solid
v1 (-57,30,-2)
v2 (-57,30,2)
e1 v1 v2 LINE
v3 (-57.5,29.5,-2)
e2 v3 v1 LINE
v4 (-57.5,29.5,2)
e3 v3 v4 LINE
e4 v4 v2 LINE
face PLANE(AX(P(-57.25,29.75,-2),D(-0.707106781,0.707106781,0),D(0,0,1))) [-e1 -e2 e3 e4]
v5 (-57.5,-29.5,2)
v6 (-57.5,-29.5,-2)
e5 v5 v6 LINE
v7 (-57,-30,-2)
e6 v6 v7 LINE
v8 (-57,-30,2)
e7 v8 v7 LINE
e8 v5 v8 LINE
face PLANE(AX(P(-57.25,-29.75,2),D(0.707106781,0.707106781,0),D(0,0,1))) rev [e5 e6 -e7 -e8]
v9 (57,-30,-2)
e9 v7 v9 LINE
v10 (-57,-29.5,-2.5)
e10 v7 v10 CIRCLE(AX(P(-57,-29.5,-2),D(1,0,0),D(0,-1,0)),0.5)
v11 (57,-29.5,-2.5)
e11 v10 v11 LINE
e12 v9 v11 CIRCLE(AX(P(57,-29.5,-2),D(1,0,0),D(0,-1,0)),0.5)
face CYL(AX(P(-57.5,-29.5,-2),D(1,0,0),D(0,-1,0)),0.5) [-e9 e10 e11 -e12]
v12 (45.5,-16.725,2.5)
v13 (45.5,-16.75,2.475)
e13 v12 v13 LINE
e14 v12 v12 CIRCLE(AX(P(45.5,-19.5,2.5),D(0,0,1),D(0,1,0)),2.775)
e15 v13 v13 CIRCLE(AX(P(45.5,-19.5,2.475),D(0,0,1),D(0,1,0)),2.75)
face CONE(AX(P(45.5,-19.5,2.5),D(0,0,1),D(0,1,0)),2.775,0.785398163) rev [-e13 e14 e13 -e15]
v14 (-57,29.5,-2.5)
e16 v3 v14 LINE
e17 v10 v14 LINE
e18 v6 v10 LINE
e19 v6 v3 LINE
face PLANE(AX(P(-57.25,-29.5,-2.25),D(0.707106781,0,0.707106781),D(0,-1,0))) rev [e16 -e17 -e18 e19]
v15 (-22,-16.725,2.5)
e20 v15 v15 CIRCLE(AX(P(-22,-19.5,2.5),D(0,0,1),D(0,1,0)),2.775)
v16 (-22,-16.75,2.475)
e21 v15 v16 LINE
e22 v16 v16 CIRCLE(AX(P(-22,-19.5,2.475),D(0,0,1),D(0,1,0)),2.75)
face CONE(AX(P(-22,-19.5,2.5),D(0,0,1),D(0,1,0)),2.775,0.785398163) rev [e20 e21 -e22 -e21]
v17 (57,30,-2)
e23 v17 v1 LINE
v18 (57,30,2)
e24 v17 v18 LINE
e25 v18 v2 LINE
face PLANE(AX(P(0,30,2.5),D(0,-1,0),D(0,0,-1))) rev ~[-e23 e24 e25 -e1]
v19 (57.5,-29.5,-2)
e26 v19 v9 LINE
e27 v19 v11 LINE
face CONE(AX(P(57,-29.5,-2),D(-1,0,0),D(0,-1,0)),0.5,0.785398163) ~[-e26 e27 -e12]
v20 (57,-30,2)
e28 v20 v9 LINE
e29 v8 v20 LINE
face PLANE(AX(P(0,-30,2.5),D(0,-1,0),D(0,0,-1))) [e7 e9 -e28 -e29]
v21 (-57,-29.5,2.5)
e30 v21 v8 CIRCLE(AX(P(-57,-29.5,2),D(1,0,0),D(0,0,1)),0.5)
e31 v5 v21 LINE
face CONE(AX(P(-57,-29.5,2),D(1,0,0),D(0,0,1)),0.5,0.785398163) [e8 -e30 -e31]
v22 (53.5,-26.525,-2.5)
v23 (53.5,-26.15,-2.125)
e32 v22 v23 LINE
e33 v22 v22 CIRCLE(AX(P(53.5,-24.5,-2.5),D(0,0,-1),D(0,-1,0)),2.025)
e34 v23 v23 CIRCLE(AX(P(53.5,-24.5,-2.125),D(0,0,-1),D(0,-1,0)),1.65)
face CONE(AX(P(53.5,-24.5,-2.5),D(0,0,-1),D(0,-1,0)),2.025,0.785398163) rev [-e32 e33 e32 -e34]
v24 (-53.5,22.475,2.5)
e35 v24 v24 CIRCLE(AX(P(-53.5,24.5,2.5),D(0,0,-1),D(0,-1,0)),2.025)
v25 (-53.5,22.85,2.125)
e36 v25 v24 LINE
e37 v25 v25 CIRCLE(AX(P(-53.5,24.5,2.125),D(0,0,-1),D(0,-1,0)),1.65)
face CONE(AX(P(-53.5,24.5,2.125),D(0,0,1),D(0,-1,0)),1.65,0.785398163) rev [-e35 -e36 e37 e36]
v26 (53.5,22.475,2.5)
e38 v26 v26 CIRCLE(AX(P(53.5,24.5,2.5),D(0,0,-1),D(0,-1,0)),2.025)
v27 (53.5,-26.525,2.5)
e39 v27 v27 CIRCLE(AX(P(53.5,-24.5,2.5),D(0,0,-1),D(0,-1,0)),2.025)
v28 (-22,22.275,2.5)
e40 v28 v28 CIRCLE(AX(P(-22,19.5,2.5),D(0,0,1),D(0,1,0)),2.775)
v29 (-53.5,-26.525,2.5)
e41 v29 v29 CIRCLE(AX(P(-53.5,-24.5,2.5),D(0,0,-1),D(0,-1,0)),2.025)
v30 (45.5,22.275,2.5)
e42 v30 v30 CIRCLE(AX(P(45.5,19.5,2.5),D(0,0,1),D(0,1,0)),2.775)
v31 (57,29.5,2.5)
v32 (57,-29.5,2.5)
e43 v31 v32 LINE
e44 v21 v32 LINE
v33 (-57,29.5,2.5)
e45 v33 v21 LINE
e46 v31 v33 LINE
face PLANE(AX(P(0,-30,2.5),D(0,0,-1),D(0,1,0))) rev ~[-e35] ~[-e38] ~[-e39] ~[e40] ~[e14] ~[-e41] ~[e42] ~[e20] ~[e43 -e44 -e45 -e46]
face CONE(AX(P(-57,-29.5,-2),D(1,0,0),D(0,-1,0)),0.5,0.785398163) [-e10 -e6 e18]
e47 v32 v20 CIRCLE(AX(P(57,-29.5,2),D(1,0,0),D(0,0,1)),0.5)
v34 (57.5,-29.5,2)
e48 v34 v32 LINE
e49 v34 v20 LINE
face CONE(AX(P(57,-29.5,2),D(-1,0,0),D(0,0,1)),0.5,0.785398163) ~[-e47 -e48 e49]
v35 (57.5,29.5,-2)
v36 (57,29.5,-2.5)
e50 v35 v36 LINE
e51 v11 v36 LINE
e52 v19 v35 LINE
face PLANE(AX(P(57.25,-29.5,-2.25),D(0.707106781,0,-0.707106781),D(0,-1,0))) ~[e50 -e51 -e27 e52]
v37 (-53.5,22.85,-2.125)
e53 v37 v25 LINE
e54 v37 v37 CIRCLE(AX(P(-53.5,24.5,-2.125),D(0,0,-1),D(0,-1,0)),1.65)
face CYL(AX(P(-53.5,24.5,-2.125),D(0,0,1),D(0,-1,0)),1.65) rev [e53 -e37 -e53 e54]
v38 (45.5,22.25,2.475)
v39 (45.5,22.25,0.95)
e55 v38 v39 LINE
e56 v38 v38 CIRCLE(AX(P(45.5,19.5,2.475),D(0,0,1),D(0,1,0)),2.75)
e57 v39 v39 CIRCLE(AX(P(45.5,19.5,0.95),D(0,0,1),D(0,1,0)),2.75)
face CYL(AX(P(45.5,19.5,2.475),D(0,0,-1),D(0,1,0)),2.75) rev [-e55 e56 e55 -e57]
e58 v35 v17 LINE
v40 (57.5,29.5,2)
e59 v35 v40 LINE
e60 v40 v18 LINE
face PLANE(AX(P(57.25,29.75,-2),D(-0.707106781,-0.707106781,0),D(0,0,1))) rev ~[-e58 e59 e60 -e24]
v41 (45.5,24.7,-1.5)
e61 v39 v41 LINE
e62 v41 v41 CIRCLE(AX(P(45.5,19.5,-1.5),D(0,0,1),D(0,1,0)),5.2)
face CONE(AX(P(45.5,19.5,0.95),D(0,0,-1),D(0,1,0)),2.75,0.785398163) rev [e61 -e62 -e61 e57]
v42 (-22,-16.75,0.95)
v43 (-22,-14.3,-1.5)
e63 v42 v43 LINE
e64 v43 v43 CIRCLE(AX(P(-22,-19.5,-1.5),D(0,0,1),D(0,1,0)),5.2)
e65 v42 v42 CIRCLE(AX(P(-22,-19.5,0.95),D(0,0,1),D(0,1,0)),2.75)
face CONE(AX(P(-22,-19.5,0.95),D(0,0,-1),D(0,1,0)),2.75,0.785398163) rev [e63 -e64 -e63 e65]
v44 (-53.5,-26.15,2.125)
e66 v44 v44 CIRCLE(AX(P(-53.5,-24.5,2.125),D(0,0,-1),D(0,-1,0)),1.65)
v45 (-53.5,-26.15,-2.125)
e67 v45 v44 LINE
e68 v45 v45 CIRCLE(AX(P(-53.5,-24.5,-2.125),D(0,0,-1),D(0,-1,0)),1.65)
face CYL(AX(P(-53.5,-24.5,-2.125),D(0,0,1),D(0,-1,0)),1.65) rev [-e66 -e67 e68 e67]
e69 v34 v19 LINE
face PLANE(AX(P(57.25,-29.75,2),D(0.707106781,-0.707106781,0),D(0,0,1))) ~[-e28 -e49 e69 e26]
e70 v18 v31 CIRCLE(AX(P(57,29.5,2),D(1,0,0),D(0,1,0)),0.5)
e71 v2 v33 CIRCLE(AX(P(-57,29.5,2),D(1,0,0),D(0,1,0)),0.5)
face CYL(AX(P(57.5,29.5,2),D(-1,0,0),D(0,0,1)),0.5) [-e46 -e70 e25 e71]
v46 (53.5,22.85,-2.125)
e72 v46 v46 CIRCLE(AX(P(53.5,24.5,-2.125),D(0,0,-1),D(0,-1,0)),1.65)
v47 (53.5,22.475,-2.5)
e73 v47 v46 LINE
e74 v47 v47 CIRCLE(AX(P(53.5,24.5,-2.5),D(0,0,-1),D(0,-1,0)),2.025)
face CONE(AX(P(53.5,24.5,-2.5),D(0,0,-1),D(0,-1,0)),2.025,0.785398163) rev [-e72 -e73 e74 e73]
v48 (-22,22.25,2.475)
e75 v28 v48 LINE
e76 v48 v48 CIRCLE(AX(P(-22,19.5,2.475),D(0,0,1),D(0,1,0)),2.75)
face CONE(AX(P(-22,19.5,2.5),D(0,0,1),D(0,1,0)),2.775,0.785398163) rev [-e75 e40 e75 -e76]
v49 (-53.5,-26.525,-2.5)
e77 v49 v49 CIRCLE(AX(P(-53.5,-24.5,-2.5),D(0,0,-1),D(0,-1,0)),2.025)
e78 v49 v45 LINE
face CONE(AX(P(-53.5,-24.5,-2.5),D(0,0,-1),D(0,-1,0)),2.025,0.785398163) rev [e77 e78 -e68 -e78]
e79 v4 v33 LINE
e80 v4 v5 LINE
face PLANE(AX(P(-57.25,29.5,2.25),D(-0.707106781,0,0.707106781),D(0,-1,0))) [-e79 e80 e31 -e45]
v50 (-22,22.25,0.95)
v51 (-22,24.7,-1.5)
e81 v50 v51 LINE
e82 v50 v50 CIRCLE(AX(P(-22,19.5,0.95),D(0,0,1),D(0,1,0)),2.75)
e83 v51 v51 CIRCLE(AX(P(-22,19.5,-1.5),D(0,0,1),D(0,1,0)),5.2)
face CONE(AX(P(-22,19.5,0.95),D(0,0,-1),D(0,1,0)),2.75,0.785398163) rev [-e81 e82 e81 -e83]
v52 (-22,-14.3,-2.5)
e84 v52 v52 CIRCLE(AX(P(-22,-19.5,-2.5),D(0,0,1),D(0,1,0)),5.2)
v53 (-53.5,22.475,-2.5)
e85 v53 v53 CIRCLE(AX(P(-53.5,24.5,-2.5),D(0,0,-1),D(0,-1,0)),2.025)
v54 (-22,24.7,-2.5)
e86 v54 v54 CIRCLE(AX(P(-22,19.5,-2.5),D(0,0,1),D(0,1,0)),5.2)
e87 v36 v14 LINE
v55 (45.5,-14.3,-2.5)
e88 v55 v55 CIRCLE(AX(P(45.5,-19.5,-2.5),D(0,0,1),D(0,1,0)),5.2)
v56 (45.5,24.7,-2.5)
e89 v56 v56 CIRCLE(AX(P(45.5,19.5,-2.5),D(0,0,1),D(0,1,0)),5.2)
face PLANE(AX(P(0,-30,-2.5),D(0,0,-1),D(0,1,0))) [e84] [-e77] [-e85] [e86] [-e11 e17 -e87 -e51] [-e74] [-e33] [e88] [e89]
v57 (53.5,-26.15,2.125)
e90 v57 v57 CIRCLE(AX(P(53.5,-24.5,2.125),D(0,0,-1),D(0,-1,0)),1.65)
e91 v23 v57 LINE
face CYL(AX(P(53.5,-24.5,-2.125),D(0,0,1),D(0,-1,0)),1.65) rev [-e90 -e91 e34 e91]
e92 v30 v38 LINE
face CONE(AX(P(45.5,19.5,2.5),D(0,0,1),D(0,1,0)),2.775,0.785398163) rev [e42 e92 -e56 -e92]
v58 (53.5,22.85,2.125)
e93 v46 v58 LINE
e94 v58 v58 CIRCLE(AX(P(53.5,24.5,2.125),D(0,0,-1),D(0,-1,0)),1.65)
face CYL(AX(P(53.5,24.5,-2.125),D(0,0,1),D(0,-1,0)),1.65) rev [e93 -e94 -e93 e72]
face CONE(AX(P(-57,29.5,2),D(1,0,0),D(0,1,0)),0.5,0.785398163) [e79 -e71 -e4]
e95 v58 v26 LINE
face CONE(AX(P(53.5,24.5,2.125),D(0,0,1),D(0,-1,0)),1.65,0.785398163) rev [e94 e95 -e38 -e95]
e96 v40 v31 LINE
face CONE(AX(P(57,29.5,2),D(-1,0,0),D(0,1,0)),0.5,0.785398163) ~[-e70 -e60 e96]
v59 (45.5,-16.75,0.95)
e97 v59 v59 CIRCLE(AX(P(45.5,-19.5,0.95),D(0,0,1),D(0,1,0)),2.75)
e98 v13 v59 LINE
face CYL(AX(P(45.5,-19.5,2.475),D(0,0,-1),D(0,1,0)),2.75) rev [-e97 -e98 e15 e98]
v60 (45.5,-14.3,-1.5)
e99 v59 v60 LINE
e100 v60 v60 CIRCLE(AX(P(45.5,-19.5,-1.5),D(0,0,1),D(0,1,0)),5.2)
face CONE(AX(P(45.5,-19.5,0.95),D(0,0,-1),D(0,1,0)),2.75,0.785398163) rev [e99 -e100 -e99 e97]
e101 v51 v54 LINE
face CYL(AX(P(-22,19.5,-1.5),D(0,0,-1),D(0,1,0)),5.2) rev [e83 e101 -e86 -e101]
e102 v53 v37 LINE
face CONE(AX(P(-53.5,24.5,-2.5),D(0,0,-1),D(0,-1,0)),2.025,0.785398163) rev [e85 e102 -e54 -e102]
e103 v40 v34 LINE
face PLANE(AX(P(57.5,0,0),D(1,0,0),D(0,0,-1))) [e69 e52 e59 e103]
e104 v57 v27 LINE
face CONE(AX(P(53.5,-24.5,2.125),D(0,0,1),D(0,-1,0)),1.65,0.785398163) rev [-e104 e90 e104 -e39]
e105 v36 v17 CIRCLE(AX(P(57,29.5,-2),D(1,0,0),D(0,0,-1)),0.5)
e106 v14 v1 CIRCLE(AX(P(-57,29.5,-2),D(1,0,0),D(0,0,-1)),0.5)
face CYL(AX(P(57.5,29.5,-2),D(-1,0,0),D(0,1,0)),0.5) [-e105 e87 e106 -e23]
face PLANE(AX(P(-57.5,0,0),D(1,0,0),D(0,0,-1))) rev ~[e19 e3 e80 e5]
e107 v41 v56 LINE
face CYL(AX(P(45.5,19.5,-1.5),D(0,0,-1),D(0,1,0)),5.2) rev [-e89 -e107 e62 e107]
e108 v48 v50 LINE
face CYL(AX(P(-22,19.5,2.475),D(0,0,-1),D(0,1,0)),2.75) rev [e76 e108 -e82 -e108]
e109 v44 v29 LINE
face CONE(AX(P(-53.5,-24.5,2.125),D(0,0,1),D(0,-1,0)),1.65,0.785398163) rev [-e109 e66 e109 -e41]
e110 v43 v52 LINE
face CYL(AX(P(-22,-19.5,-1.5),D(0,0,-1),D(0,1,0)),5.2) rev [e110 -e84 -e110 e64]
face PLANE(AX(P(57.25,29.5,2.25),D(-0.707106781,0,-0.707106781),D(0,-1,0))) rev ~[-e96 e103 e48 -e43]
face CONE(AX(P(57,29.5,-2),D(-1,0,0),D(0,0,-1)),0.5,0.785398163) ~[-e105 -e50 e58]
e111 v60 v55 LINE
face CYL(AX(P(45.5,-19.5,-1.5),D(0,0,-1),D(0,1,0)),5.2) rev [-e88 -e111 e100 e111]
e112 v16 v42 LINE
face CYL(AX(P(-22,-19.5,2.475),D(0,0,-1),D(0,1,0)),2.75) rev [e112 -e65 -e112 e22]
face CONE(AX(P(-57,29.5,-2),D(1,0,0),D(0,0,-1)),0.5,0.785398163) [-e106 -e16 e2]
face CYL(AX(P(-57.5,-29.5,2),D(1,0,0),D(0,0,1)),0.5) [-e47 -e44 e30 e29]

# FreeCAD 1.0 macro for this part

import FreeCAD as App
import Part
import Sketcher

V = App.Vector
Q = App.Units.Quantity


def edges_at(feature, points):
    """Names of the edges that pass closest to the given points."""
    edges = feature.Shape.Edges
    near = lambda p: min(range(len(edges)), key=lambda i: edges[i].distToShape(Part.Vertex(*p))[0])
    return sorted({f"Edge{near(p) + 1}" for p in points})


def add_polygon(sketch, points):
    """Adds a closed chain of lines whose ends are joined by coincident constraints."""
    first, n = sketch.GeometryCount, len(points)
    for a, b in zip(points, points[1:] + points[:1]):
        sketch.addGeometry(Part.LineSegment(App.Vector(*a, 0), App.Vector(*b, 0)), False)
    for i in range(n):
        sketch.addConstraint(Sketcher.Constraint("Coincident", first + i, 2, first + (i + 1) % n, 1))

doc = App.newDocument("Part")
body = doc.addObject("PartDesign::Body", "Body")

# Sketch on YZ plane
sketch1 = doc.addObject("Sketcher::SketchObject", "Sketch")
body.addObject(sketch1)
sketch1.AttachmentSupport = (doc.YZ_Plane, [""])
sketch1.MapMode = "FlatFace"
add_polygon(sketch1, [(30, 2.5), (-30, 2.5), (-30, -2.5), (30, -2.5)])  # lines 0-3
sketch1.addConstraint([
    Sketcher.Constraint("Horizontal", 0),
    Sketcher.Constraint("Vertical", 1),
    Sketcher.Constraint("Horizontal", 2),
    Sketcher.Constraint("Vertical", 3),
    Sketcher.Constraint("Symmetric", 0, 2, 2, 2, -1, 1),
    Sketcher.Constraint("DistanceX", 0, 2, 0, 1, 60.0),
    Sketcher.Constraint("DistanceY", 1, 2, 1, 1, 5.0),
])
pad1 = doc.addObject("PartDesign::Pad", "Pad")
body.addObject(pad1)
pad1.Profile = sketch1
pad1.Length = 115
pad1.Midplane = True

# Sketch on YZ plane
sketch2 = doc.addObject("Sketcher::SketchObject", "Sketch001")
body.addObject(sketch2)
sketch2.AttachmentSupport = (doc.YZ_Plane, [""])
sketch2.MapMode = "FlatFace"
sketch2.AttachmentOffset = App.Placement(V(0, 0, -53.5), App.Rotation())
add_polygon(sketch2, [(24.5, -2.5), (24.5, 2.5), (22.475, 2.5), (22.85, 2.125), (22.85, -2.125), (22.475, -2.5)])  # lines 0-5
sketch2.addGeometry(Part.LineSegment(V(24.5, 2.5, 0), V(24.5, -2.5, 0)), True)  # axis
sketch2.addConstraint([
    Sketcher.Constraint("Vertical", 0),
    Sketcher.Constraint("Horizontal", 1),
    Sketcher.Constraint("Vertical", 3),
    Sketcher.Constraint("Horizontal", 5),
    Sketcher.Constraint("Vertical", 6),
    Sketcher.Constraint("Coincident", 6, 1, 0, 2),
    Sketcher.Constraint("Symmetric", 1, 2, 4, 2, -1),
    Sketcher.Constraint("Perpendicular", 2, 4),
    Sketcher.Constraint("Horizontal", 4, 2, 6, 2),
    Sketcher.Constraint("Equal", 2, 4),
    Sketcher.Constraint("DistanceY", 0, 1, 0, 2, 5.0),
    Sketcher.Constraint("DistanceY", 3, 2, 3, 1, 4.25),
    Sketcher.Constraint("DistanceX", -1, 1, 0, 2, 24.5),
    Sketcher.Constraint("DistanceX", 1, 2, 1, 1, 2.025),
])
groove = doc.addObject("PartDesign::Groove", "Groove")
body.addObject(groove)
groove.Profile = sketch2
groove.ReferenceAxis = (sketch2, ["Axis0"])
groove.Angle = 360
doc.recompute()

linearpattern = doc.addObject("PartDesign::LinearPattern", "LinearPattern")
body.addObject(linearpattern)
linearpattern.Originals = [groove]
linearpattern.Direction = (doc.X_Axis, [""])
linearpattern.Mode = "offset"
linearpattern.Offset = 107
linearpattern.Occurrences = 2
body.Tip = linearpattern
doc.recompute()

linearpattern2 = doc.addObject("PartDesign::LinearPattern", "LinearPattern001")
body.addObject(linearpattern2)
linearpattern2.Originals = [groove]
linearpattern2.Direction = (doc.Y_Axis, [""])
linearpattern2.Mode = "offset"
linearpattern2.Offset = 49
linearpattern2.Occurrences = 2
linearpattern2.Reversed = True
body.Tip = linearpattern2
doc.recompute()

datumline = doc.addObject("PartDesign::Line", "DatumLine")
body.addObject(datumline)
datumline.Placement = App.Placement(V(0, 0, 0), App.Rotation(V(0, 0, 1), V(0.909198878, -0.416362103, 0)))
linearpattern3 = doc.addObject("PartDesign::LinearPattern", "LinearPattern002")
body.addObject(linearpattern3)
linearpattern3.Originals = [groove]
linearpattern3.Direction = (datumline, [""])
linearpattern3.Mode = "offset"
linearpattern3.Offset = 117.686023
linearpattern3.Occurrences = 2
body.Tip = linearpattern3

# Sketch on YZ plane
sketch3 = doc.addObject("Sketcher::SketchObject", "Sketch002")
body.addObject(sketch3)
sketch3.AttachmentSupport = (doc.YZ_Plane, [""])
sketch3.MapMode = "FlatFace"
sketch3.AttachmentOffset = App.Placement(V(0, 0, -22), App.Rotation())
add_polygon(sketch3, [(19.5, 2.5), (19.5, -2.5), (24.7, -2.5), (24.7, -1.5), (22.25, 0.95), (22.25, 2.475), (22.275, 2.5)])  # lines 0-6
sketch3.addGeometry(Part.LineSegment(V(19.5, -2.5, 0), V(19.5, 2.5, 0)), True)  # axis
sketch3.addConstraint([
    Sketcher.Constraint("Vertical", 0),
    Sketcher.Constraint("Horizontal", 1),
    Sketcher.Constraint("Vertical", 2),
    Sketcher.Constraint("Vertical", 4),
    Sketcher.Constraint("Horizontal", 6),
    Sketcher.Constraint("Vertical", 7),
    Sketcher.Constraint("Coincident", 7, 1, 0, 2),
    Sketcher.Constraint("Perpendicular", 3, 5),
    Sketcher.Constraint("Horizontal", 5, 2, 7, 2),
    Sketcher.Constraint("DistanceY", 0, 2, 0, 1, 5.0),
    Sketcher.Constraint("DistanceY", 2, 1, 2, 2, 1.0),
    Sketcher.Constraint("Angle", 3, Q("135 deg")),
    Sketcher.Constraint("DistanceX", 1, 1, 1, 2, 5.2),
    Sketcher.Constraint("DistanceX", -1, 1, 0, 2, 19.5),
    Sketcher.Constraint("DistanceY", 0, 2, -1, 1, 2.5),
    Sketcher.Constraint("DistanceX", 6, 2, 6, 1, 2.775),
    Sketcher.Constraint("DistanceY", 4, 1, 4, 2, 1.525),
])
groove2 = doc.addObject("PartDesign::Groove", "Groove001")
body.addObject(groove2)
groove2.Profile = sketch3
groove2.ReferenceAxis = (sketch3, ["Axis0"])
groove2.Angle = 360
doc.recompute()

datumline2 = doc.addObject("PartDesign::Line", "DatumLine001")
body.addObject(datumline2)
datumline2.Placement = App.Placement(V(0, 0, 0), App.Rotation(V(0, 0, 1), V(0.865865073, -0.500277598, 0)))
linearpattern4 = doc.addObject("PartDesign::LinearPattern", "LinearPattern003")
body.addObject(linearpattern4)
linearpattern4.Originals = [groove2]
linearpattern4.Direction = (datumline2, [""])
linearpattern4.Mode = "offset"
linearpattern4.Offset = 77.956719
linearpattern4.Occurrences = 2
body.Tip = linearpattern4
doc.recompute()

linearpattern5 = doc.addObject("PartDesign::LinearPattern", "LinearPattern004")
body.addObject(linearpattern5)
linearpattern5.Originals = [groove2]
linearpattern5.Direction = (doc.X_Axis, [""])
linearpattern5.Mode = "offset"
linearpattern5.Offset = 67.5
linearpattern5.Occurrences = 2
body.Tip = linearpattern5
doc.recompute()

linearpattern6 = doc.addObject("PartDesign::LinearPattern", "LinearPattern005")
body.addObject(linearpattern6)
linearpattern6.Originals = [groove2]
linearpattern6.Direction = (doc.Y_Axis, [""])
linearpattern6.Mode = "offset"
linearpattern6.Offset = 39
linearpattern6.Occurrences = 2
linearpattern6.Reversed = True
body.Tip = linearpattern6
doc.recompute()

fillet = doc.addObject("PartDesign::Fillet", "Fillet")
body.addObject(fillet)
fillet.Base = (linearpattern6, edges_at(linearpattern6, [
    (0, -30, -2.5),
    (0, -30, 2.5),
    (0, 30, 2.5),
    (0, 30, -2.5),
]))
fillet.Radius = 0.5
doc.recompute()

chamfer = doc.addObject("PartDesign::Chamfer", "Chamfer")
body.addObject(chamfer)
chamfer.Base = (fillet, edges_at(fillet, [
    (-57.5, 0, -2.5),
    (57.5, 0, -2.5),
    (-57.5, -30, 0),
    (-57.5, 0, 2.5),
    (-57.5, 30, 0),
    (-57.5, 29.854, 2.354),
    (-57.5, 29.854, -2.354),
    (-57.5, -29.854, 2.354),
    (-57.5, -29.854, -2.354),
    (57.5, -30, 0),
    (57.5, 30, 0),
    (57.5, 0, 2.5),
    (57.5, 29.854, 2.354),
    (57.5, 29.854, -2.354),
    (57.5, -29.854, 2.354),
    (57.5, -29.854, -2.354),
]))
chamfer.Size = 0.5

doc.recompute()
